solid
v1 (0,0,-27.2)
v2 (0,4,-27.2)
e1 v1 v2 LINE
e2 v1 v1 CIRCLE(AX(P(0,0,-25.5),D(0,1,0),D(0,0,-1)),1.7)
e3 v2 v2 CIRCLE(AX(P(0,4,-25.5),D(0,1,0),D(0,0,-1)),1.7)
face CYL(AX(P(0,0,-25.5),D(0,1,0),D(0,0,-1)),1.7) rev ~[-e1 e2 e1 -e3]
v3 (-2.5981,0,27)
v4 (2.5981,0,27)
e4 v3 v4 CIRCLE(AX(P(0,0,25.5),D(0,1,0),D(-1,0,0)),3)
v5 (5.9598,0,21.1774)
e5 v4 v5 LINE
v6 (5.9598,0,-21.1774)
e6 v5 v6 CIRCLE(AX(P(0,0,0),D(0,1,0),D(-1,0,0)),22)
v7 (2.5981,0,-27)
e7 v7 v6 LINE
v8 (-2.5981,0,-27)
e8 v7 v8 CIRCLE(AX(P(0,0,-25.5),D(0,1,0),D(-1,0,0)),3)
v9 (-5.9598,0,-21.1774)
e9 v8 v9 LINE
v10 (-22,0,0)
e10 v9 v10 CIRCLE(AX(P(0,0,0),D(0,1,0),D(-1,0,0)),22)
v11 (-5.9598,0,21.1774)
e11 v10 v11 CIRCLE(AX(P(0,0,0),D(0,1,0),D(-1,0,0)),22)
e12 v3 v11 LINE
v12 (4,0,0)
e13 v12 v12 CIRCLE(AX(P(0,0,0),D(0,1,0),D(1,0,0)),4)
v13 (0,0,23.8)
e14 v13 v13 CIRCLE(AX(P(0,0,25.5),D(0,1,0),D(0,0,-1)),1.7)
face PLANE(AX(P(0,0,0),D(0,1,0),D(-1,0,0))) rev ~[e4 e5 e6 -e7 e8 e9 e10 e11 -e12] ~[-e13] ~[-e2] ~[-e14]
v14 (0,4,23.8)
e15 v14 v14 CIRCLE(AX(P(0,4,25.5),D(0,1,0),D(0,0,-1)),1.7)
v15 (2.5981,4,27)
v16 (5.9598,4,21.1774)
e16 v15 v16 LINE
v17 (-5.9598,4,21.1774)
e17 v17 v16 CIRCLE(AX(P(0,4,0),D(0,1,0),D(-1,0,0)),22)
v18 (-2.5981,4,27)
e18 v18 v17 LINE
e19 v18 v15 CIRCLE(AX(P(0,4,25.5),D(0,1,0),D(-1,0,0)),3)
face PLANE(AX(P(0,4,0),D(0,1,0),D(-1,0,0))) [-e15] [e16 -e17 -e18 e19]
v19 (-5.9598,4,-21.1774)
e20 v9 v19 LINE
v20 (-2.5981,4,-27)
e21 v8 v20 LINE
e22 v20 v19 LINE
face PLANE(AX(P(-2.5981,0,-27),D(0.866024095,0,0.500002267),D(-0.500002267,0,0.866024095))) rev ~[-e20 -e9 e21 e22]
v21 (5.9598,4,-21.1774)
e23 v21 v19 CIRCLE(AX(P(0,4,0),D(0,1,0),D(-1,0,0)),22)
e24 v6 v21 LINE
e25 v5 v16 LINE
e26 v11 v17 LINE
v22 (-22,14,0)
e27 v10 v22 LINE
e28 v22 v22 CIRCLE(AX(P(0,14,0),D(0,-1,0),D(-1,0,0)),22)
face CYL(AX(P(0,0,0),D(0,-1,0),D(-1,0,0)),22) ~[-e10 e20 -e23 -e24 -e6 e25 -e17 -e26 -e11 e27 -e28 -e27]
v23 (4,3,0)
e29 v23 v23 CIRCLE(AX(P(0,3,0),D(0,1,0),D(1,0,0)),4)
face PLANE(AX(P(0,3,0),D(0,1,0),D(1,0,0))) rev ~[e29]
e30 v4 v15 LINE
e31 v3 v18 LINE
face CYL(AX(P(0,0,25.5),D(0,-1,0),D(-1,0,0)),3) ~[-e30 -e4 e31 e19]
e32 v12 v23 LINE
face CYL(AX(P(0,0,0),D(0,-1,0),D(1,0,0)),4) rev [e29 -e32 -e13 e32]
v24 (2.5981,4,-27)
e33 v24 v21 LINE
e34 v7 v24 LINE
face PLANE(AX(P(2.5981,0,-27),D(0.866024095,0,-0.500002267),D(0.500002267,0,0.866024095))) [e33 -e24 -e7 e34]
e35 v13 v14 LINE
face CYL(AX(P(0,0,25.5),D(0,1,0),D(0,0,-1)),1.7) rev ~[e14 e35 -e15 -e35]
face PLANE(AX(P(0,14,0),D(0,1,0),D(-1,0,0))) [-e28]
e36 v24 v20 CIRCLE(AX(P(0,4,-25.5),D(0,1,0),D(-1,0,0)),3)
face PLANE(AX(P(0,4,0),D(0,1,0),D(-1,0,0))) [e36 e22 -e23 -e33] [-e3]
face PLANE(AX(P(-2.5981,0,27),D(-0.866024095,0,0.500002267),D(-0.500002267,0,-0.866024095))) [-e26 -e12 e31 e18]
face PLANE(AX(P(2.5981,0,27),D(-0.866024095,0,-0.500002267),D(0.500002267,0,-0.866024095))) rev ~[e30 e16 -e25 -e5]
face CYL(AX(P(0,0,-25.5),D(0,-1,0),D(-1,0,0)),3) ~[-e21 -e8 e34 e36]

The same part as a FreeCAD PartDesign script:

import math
import FreeCAD as App
import Part
import Sketcher
Q = App.Units.Quantity

doc = App.newDocument("Part")
params = doc.addObject("Spreadsheet::Sheet", "Params")
for row, (alias, value) in enumerate([
    ("sketch1_diameter", "44 mm"),
    ("pad1_length", "14 mm"),
    ("sketch2_radius", "22 mm"),
    ("sketch2_radius2", "3 mm"),
    ("pad2_length", "4 mm"),
    ("sketch3_diameter", "3.4 mm"),
    ("hole_diameter", "3.4 mm"),
    ("hole_depth", "4 mm"),
    ("sketch4_diameter", "8 mm"),
    ("pocket1_length", "3 mm"),
], start=1):
    params.set(f"A{row}", alias)
    params.set(f"B{row}", "=" + value)
    params.setAlias(f"B{row}", alias)

body = doc.addObject("PartDesign::Body", "Body")

# Sketch on XZ plane
sketch1 = doc.addObject("Sketcher::SketchObject", "Sketch")
body.addObject(sketch1)
sketch1.AttachmentSupport = (doc.XZ_Plane, [""])
sketch1.MapMode = "FlatFace"
sketch1.addGeometry(Part.Circle(App.Vector(0, 0, 0), App.Vector(0, 0, 1), 22), False)
sketch1.addConstraint([
    Sketcher.Constraint("Coincident", 0, 3, -1, 1),
    Sketcher.Constraint("Diameter", 0, Q("44 mm")),
])
sketch1.setExpression("Constraints[1]", "Params.sketch1_diameter")
pad1 = doc.addObject("PartDesign::Pad", "Pad")
body.addObject(pad1)
pad1.Profile = sketch1
pad1.setExpression("Length", "Params.pad1_length")
pad1.Reversed = True

# Sketch on XZ plane
sketch2 = doc.addObject("Sketcher::SketchObject", "Sketch001")
body.addObject(sketch2)
sketch2.AttachmentSupport = (doc.XZ_Plane, [""])
sketch2.MapMode = "FlatFace"
sketch2.addGeometry([
    Part.ArcOfCircle(Part.Circle(App.Vector(0, 0, 0), App.Vector(0, 0, 1), 22), math.radians(74.282196), math.radians(105.717804)),  # 0
    Part.LineSegment(App.Vector(-5.9598, 21.1774, 0), App.Vector(-2.5981, 27, 0)),  # 1
    Part.ArcOfCircle(Part.Circle(App.Vector(0, 25.5, 0), App.Vector(0, 0, 1), 3), math.radians(29.999773), math.radians(150.000227)),  # 2
    Part.LineSegment(App.Vector(2.5981, 27, 0), App.Vector(5.9598, 21.1774, 0)),  # 3
    Part.LineSegment(App.Vector(-2.5981, -27, 0), App.Vector(-5.9598, -21.1774, 0)),  # 4
    Part.ArcOfCircle(Part.Circle(App.Vector(0, 0, 0), App.Vector(0, 0, 1), 22), math.radians(-105.717804), math.radians(-74.282196)),  # 5
    Part.LineSegment(App.Vector(5.9598, -21.1774, 0), App.Vector(2.5981, -27, 0)),  # 6
    Part.ArcOfCircle(Part.Circle(App.Vector(0, -25.5, 0), App.Vector(0, 0, 1), 3), math.radians(-150.000227), math.radians(-29.999773)),  # 7
], False)
sketch2.addConstraint([
    Sketcher.Constraint("Coincident", 0, 2, 1, 1),
    Sketcher.Constraint("Tangent", 1, 2, 2, 2),
    Sketcher.Constraint("Tangent", 2, 1, 3, 1),
    Sketcher.Constraint("Coincident", 3, 2, 0, 1),
    Sketcher.Constraint("Coincident", 4, 2, 5, 1),
    Sketcher.Constraint("Coincident", 5, 2, 6, 1),
    Sketcher.Constraint("Tangent", 6, 2, 7, 2),
    Sketcher.Constraint("Tangent", 7, 1, 4, 1),
    Sketcher.Constraint("Coincident", 0, 3, -1, 1),
    Sketcher.Constraint("Coincident", 5, 3, -1, 1),
    Sketcher.Constraint("Equal", 0, 5),
    Sketcher.Constraint("Equal", 2, 7),
    Sketcher.Constraint("Symmetric", 2, 3, 7, 3, -1, 1),
    Sketcher.Constraint("Symmetric", 1, 2, 2, 1, -2),
    Sketcher.Constraint("Parallel", 3, 4),
    Sketcher.Constraint("Parallel", 1, 6),
    Sketcher.Constraint("Radius", 0, Q("22 mm")),
    Sketcher.Constraint("Radius", 2, Q("3 mm")),
    Sketcher.Constraint("Angle", 1, Q("59.9999 deg")),
    Sketcher.Constraint("DistanceY", 7, 3, 2, 3, Q("51 mm")),
])
sketch2.setExpression("Constraints[16]", "Params.sketch2_radius")
sketch2.setExpression("Constraints[17]", "Params.sketch2_radius2")
pad2 = doc.addObject("PartDesign::Pad", "Pad001")
body.addObject(pad2)
pad2.Profile = sketch2
pad2.setExpression("Length", "Params.pad2_length")
pad2.Reversed = True

# Sketch on XZ plane
sketch3 = doc.addObject("Sketcher::SketchObject", "Sketch002")
body.addObject(sketch3)
sketch3.AttachmentSupport = (doc.XZ_Plane, [""])
sketch3.MapMode = "FlatFace"
sketch3.addGeometry([
    Part.Circle(App.Vector(0, -25.5, 0), App.Vector(0, 0, 1), 1.7),
    Part.Circle(App.Vector(0, 25.5, 0), App.Vector(0, 0, 1), 1.7),
], False)
sketch3.addConstraint([
    Sketcher.Constraint("Equal", 0, 1),
    Sketcher.Constraint("Symmetric", 0, 3, 1, 3, -1, 1),
    Sketcher.Constraint("PointOnObject", 0, 3, -2),
    Sketcher.Constraint("Diameter", 0, Q("3.4 mm")),
    Sketcher.Constraint("DistanceY", 0, 3, 1, 3, Q("51 mm")),
])
sketch3.setExpression("Constraints[3]", "Params.sketch3_diameter")
doc.recompute()
hole = doc.addObject("PartDesign::Hole", "Hole")
body.addObject(hole)
hole.Profile = sketch3
hole.ThreadType = "None"
hole.setExpression("Diameter", "Params.hole_diameter")
hole.DepthType = "Dimension"
hole.setExpression("Depth", "Params.hole_depth")
hole.DrillPoint = "Flat"

# Sketch on XZ plane
sketch4 = doc.addObject("Sketcher::SketchObject", "Sketch003")
body.addObject(sketch4)
sketch4.AttachmentSupport = (doc.XZ_Plane, [""])
sketch4.MapMode = "FlatFace"
sketch4.addGeometry(Part.Circle(App.Vector(0, 0, 0), App.Vector(0, 0, 1), 4), False)
sketch4.addConstraint([
    Sketcher.Constraint("Coincident", 0, 3, -1, 1),
    Sketcher.Constraint("Diameter", 0, Q("8 mm")),
])
sketch4.setExpression("Constraints[1]", "Params.sketch4_diameter")
pocket1 = doc.addObject("PartDesign::Pocket", "Pocket")
body.addObject(pocket1)
pocket1.Profile = sketch4
pocket1.setExpression("Length", "Params.pocket1_length")

doc.recompute()
